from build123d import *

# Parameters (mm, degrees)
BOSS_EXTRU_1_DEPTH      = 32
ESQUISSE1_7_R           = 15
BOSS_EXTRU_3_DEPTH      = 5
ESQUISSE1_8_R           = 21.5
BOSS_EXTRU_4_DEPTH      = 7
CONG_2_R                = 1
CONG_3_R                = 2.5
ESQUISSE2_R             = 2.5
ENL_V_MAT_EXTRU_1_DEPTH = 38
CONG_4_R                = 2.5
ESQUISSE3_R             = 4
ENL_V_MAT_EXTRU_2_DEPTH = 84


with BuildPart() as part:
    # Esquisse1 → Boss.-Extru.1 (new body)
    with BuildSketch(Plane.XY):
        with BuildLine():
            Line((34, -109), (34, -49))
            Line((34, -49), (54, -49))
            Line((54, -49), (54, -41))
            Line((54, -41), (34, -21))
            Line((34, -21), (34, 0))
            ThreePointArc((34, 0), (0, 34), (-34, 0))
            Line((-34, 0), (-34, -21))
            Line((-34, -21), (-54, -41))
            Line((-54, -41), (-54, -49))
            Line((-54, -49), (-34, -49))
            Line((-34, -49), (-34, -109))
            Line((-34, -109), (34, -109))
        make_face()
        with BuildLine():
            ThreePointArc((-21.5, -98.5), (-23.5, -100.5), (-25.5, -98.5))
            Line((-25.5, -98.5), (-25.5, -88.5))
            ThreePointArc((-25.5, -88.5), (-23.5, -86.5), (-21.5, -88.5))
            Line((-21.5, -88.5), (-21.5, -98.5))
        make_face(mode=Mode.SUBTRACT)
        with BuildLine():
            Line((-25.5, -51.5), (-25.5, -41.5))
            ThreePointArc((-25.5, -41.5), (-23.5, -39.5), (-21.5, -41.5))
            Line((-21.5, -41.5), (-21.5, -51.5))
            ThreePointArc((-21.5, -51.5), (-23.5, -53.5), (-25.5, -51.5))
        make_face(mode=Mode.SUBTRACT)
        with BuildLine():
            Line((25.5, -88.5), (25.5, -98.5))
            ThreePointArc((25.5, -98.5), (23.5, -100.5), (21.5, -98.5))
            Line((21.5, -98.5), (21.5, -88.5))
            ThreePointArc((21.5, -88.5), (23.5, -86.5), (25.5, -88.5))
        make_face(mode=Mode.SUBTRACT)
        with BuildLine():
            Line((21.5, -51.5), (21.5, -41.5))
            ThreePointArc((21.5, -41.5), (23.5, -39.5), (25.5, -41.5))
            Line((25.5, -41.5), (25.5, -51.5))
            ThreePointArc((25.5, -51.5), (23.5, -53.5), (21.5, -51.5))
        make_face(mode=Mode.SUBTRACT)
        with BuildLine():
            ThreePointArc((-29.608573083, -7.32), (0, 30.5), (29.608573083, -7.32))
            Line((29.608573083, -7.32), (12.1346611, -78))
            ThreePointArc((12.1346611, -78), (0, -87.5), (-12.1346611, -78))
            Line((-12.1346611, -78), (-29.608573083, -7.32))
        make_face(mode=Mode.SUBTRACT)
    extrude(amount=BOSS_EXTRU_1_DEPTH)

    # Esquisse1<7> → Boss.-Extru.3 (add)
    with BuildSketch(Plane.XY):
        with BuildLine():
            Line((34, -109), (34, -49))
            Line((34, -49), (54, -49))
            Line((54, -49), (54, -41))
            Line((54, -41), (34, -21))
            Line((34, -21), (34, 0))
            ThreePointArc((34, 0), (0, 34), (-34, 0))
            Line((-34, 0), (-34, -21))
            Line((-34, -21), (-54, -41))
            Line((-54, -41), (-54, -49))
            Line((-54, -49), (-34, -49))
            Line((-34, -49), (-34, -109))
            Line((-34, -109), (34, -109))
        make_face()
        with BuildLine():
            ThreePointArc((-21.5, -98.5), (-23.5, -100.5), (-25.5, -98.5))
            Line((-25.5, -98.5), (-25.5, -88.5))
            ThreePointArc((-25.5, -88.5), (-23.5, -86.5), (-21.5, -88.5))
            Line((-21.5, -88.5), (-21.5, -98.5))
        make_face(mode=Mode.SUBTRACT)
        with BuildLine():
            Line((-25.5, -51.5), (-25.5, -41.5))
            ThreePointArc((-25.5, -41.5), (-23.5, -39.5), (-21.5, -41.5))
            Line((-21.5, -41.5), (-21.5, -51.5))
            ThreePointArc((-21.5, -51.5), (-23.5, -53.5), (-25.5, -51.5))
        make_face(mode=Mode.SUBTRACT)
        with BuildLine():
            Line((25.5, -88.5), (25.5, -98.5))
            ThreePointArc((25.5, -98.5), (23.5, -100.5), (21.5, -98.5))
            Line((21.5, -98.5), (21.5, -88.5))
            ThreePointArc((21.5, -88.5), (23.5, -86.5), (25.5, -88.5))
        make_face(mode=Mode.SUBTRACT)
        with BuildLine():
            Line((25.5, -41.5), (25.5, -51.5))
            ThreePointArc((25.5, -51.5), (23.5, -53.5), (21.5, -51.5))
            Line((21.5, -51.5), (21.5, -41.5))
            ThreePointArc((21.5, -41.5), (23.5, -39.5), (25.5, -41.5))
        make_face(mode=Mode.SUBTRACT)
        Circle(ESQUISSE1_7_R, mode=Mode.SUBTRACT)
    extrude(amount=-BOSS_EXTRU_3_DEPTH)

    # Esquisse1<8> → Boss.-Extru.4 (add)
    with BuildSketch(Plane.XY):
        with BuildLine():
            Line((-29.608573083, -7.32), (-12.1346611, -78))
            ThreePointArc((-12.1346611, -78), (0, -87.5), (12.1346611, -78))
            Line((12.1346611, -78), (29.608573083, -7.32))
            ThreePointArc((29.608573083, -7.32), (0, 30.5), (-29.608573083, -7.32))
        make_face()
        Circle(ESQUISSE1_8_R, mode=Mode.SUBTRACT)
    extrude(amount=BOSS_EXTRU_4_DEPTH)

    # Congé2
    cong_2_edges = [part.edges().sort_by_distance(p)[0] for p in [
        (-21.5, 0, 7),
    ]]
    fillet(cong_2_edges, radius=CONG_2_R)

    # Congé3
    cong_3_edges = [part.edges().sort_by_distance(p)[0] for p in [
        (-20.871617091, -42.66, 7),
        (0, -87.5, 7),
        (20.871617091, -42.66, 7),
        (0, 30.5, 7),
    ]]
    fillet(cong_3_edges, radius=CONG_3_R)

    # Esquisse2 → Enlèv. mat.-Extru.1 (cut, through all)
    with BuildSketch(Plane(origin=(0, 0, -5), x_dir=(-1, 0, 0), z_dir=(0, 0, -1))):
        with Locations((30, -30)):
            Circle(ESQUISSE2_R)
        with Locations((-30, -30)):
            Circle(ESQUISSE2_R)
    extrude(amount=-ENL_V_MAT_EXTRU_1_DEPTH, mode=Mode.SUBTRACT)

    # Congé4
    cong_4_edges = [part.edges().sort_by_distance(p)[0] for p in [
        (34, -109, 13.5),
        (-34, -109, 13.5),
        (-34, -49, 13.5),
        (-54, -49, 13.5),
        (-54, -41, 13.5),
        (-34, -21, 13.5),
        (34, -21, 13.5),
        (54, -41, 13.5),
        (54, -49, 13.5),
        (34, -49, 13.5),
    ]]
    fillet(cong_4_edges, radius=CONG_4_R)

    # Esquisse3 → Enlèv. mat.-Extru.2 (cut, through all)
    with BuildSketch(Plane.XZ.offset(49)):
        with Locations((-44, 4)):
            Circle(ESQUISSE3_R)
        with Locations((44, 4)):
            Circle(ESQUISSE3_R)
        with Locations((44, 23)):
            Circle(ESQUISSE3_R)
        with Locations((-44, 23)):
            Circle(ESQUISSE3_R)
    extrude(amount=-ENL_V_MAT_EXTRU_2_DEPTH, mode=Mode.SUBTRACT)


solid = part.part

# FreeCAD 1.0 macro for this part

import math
import FreeCAD as App
import Part
import Sketcher
from FreeCAD import Vector
Q = App.Units.Quantity


def edges_at(feature, points):
    """Names of the edges that pass closest to the given points."""
    edges = feature.Shape.Edges
    near = lambda p: min(range(len(edges)), key=lambda i: edges[i].distToShape(Part.Vertex(*p))[0])
    return sorted({f"Edge{near(p) + 1}" for p in points})

doc = App.newDocument("Part")
body = doc.addObject("PartDesign::Body", "Body")

sketch1 = body.newObject("Sketcher::SketchObject", "Sketch")
sketch1.AttachmentSupport = (doc.getObject("XY_Plane"), [""])
sketch1.MapMode = "FlatFace"
sketch1.addGeometry([
    Part.LineSegment(Vector(34, -109, 0), Vector(34, -49, 0)),
    Part.LineSegment(Vector(34, -49, 0), Vector(54, -49, 0)),
    Part.LineSegment(Vector(54, -49, 0), Vector(54, -41, 0)),
    Part.LineSegment(Vector(54, -41, 0), Vector(34, -21, 0)),
    Part.LineSegment(Vector(34, -21, 0), Vector(34, 0, 0)),
    Part.ArcOfCircle(Part.Circle(Vector(0, 0, 0), Vector(0, 0, 1), 34), math.radians(0), math.radians(180)),
    Part.LineSegment(Vector(-34, 0, 0), Vector(-34, -21, 0)),
    Part.LineSegment(Vector(-34, -21, 0), Vector(-54, -41, 0)),
    Part.LineSegment(Vector(-54, -41, 0), Vector(-54, -49, 0)),
    Part.LineSegment(Vector(-54, -49, 0), Vector(-34, -49, 0)),
    Part.LineSegment(Vector(-34, -49, 0), Vector(-34, -109, 0)),
    Part.LineSegment(Vector(-34, -109, 0), Vector(34, -109, 0)),
    Part.LineSegment(Vector(-21.5, -88.5, 0), Vector(-21.5, -98.5, 0)),
    Part.ArcOfCircle(Part.Circle(Vector(-23.5, -98.5, 0), Vector(0, 0, 1), 2), math.radians(180), math.radians(360)),
    Part.LineSegment(Vector(-25.5, -98.5, 0), Vector(-25.5, -88.5, 0)),
    Part.ArcOfCircle(Part.Circle(Vector(-23.5, -88.5, 0), Vector(0, 0, 1), 2), math.radians(0), math.radians(180)),
    Part.ArcOfCircle(Part.Circle(Vector(-23.5, -51.5, 0), Vector(0, 0, 1), 2), math.radians(180), math.radians(360)),
    Part.LineSegment(Vector(-25.5, -51.5, 0), Vector(-25.5, -41.5, 0)),
    Part.ArcOfCircle(Part.Circle(Vector(-23.5, -41.5, 0), Vector(0, 0, 1), 2), math.radians(0), math.radians(180)),
    Part.LineSegment(Vector(-21.5, -41.5, 0), Vector(-21.5, -51.5, 0)),
    Part.ArcOfCircle(Part.Circle(Vector(23.5, -88.5, 0), Vector(0, 0, 1), 2), math.radians(0), math.radians(180)),
    Part.LineSegment(Vector(25.5, -88.5, 0), Vector(25.5, -98.5, 0)),
    Part.ArcOfCircle(Part.Circle(Vector(23.5, -98.5, 0), Vector(0, 0, 1), 2), math.radians(180), math.radians(360)),
    Part.LineSegment(Vector(21.5, -98.5, 0), Vector(21.5, -88.5, 0)),
    Part.ArcOfCircle(Part.Circle(Vector(23.5, -51.5, 0), Vector(0, 0, 1), 2), math.radians(180), math.radians(360)),
    Part.LineSegment(Vector(21.5, -51.5, 0), Vector(21.5, -41.5, 0)),
    Part.ArcOfCircle(Part.Circle(Vector(23.5, -41.5, 0), Vector(0, 0, 1), 2), math.radians(0), math.radians(180)),
    Part.LineSegment(Vector(25.5, -41.5, 0), Vector(25.5, -51.5, 0)),
    Part.LineSegment(Vector(-12.1, -78, 0), Vector(-29.6, -7.3, 0)),
    Part.ArcOfCircle(Part.Circle(Vector(0, 0, 0), Vector(0, 0, 1), 30.5), math.radians(-14), math.radians(194)),
    Part.LineSegment(Vector(29.6, -7.3, 0), Vector(12.1, -78, 0)),
    Part.ArcOfCircle(Part.Circle(Vector(0, -75, 0), Vector(0, 0, 1), 12.5), math.radians(-166), math.radians(-14)),
], False)
sketch1.addConstraint([
    Sketcher.Constraint("Coincident", 0, 2, 1, 1),
    Sketcher.Constraint("Coincident", 1, 2, 2, 1),
    Sketcher.Constraint("Coincident", 2, 2, 3, 1),
    Sketcher.Constraint("Coincident", 3, 2, 4, 1),
    Sketcher.Constraint("Tangent", 4, 2, 5, 1),
    Sketcher.Constraint("Tangent", 5, 2, 6, 1),
    Sketcher.Constraint("Coincident", 6, 2, 7, 1),
    Sketcher.Constraint("Coincident", 7, 2, 8, 1),
    Sketcher.Constraint("Coincident", 8, 2, 9, 1),
    Sketcher.Constraint("Coincident", 9, 2, 10, 1),
    Sketcher.Constraint("Coincident", 10, 2, 11, 1),
    Sketcher.Constraint("Coincident", 11, 2, 0, 1),
    Sketcher.Constraint("Tangent", 12, 2, 13, 2),
    Sketcher.Constraint("Tangent", 13, 1, 14, 1),
    Sketcher.Constraint("Tangent", 14, 2, 15, 2),
    Sketcher.Constraint("Tangent", 15, 1, 12, 1),
    Sketcher.Constraint("Tangent", 16, 1, 17, 1),
    Sketcher.Constraint("Tangent", 17, 2, 18, 2),
    Sketcher.Constraint("Tangent", 18, 1, 19, 1),
    Sketcher.Constraint("Tangent", 19, 2, 16, 2),
    Sketcher.Constraint("Tangent", 20, 1, 21, 1),
    Sketcher.Constraint("Tangent", 21, 2, 22, 2),
    Sketcher.Constraint("Tangent", 22, 1, 23, 1),
    Sketcher.Constraint("Tangent", 23, 2, 20, 2),
    Sketcher.Constraint("Tangent", 24, 1, 25, 1),
    Sketcher.Constraint("Tangent", 25, 2, 26, 2),
    Sketcher.Constraint("Tangent", 26, 1, 27, 1),
    Sketcher.Constraint("Tangent", 27, 2, 24, 2),
    Sketcher.Constraint("Tangent", 28, 2, 29, 2),
    Sketcher.Constraint("Tangent", 29, 1, 30, 1),
    Sketcher.Constraint("Tangent", 30, 2, 31, 2),
    Sketcher.Constraint("Tangent", 31, 1, 28, 1),
    Sketcher.Constraint("Vertical", 0),
    Sketcher.Constraint("Horizontal", 1),
    Sketcher.Constraint("Vertical", 2),
    Sketcher.Constraint("Vertical", 4),
    Sketcher.Constraint("Vertical", 6),
    Sketcher.Constraint("Vertical", 8),
    Sketcher.Constraint("Horizontal", 9),
    Sketcher.Constraint("Vertical", 10),
    Sketcher.Constraint("Horizontal", 11),
    Sketcher.Constraint("Vertical", 12),
    Sketcher.Constraint("Vertical", 14),
    Sketcher.Constraint("Vertical", 17),
    Sketcher.Constraint("Vertical", 19),
    Sketcher.Constraint("Vertical", 21),
    Sketcher.Constraint("Vertical", 23),
    Sketcher.Constraint("Vertical", 25),
    Sketcher.Constraint("Vertical", 27),
    Sketcher.Constraint("Coincident", 5, 3, -1, 1),
    Sketcher.Constraint("Coincident", 29, 3, -1, 1),
    Sketcher.Constraint("Equal", 15, 16),
    Sketcher.Constraint("Equal", 18, 20),
    Sketcher.Constraint("Equal", 22, 24),
    Sketcher.Constraint("Symmetric", 15, 3, 20, 3, -2),
    Sketcher.Constraint("Symmetric", 16, 3, 24, 3, -2),
    Sketcher.Constraint("Symmetric", 2, 2, 7, 2, -2),
    Sketcher.Constraint("Symmetric", 0, 2, 9, 2, -2),
    Sketcher.Constraint("PointOnObject", 31, 3, -2),
    Sketcher.Constraint("Perpendicular", 3, 7),
    Sketcher.Constraint("Horizontal", 13, 3, 22, 3),
    Sketcher.Constraint("Horizontal", 18, 3, 26, 3),
    Sketcher.Constraint("Horizontal", 3, 2, 6, 2),
    Sketcher.Constraint("Vertical", 15, 3, 16, 3),
    Sketcher.Constraint("Vertical", 0, 2, 3, 2),
    Sketcher.Constraint("Equal", 14, 17),
    Sketcher.Constraint("Radius", 5, Q("34 mm")),
    Sketcher.Constraint("Radius", 13, Q("2 mm")),
    Sketcher.Constraint("Radius", 29, Q("30.5 mm")),
    Sketcher.Constraint("Radius", 31, Q("12.5 mm")),
    Sketcher.Constraint("DistanceX", 1, 1, 1, 2, Q("20 mm")),
    Sketcher.Constraint("DistanceY", 0, 1, 0, 2, Q("60 mm")),
    Sketcher.Constraint("DistanceY", 2, 1, 2, 2, Q("8 mm")),
    Sketcher.Constraint("DistanceY", 4, 1, 4, 2, Q("21 mm")),
    Sketcher.Constraint("DistanceY", 12, 2, 12, 1, Q("10 mm")),
    Sketcher.Constraint("DistanceY", 31, 3, -1, 1, Q("75 mm")),
    Sketcher.Constraint("DistanceY", 15, 3, 16, 3, Q("37 mm")),
    Sketcher.Constraint("DistanceX", 15, 3, 20, 3, Q("47 mm")),
    Sketcher.Constraint("DistanceY", 13, 3, -1, 1, Q("98.5 mm")),
])
pad1 = body.newObject("PartDesign::Pad", "Pad")
pad1.Profile = sketch1
pad1.Length = 32

sketch2 = body.newObject("Sketcher::SketchObject", "Sketch001")
sketch2.AttachmentSupport = (doc.getObject("XY_Plane"), [""])
sketch2.MapMode = "FlatFace"
sketch2.addGeometry([
    Part.LineSegment(Vector(34, -109, 0), Vector(34, -49, 0)),
    Part.LineSegment(Vector(34, -49, 0), Vector(54, -49, 0)),
    Part.LineSegment(Vector(54, -49, 0), Vector(54, -41, 0)),
    Part.LineSegment(Vector(54, -41, 0), Vector(34, -21, 0)),
    Part.LineSegment(Vector(34, -21, 0), Vector(34, 0, 0)),
    Part.ArcOfCircle(Part.Circle(Vector(0, 0, 0), Vector(0, 0, 1), 34), math.radians(0), math.radians(180)),
    Part.LineSegment(Vector(-34, 0, 0), Vector(-34, -21, 0)),
    Part.LineSegment(Vector(-34, -21, 0), Vector(-54, -41, 0)),
    Part.LineSegment(Vector(-54, -41, 0), Vector(-54, -49, 0)),
    Part.LineSegment(Vector(-54, -49, 0), Vector(-34, -49, 0)),
    Part.LineSegment(Vector(-34, -49, 0), Vector(-34, -109, 0)),
    Part.LineSegment(Vector(-34, -109, 0), Vector(34, -109, 0)),
    Part.LineSegment(Vector(-21.5, -88.5, 0), Vector(-21.5, -98.5, 0)),
    Part.ArcOfCircle(Part.Circle(Vector(-23.5, -98.5, 0), Vector(0, 0, 1), 2), math.radians(180), math.radians(360)),
    Part.LineSegment(Vector(-25.5, -98.5, 0), Vector(-25.5, -88.5, 0)),
    Part.ArcOfCircle(Part.Circle(Vector(-23.5, -88.5, 0), Vector(0, 0, 1), 2), math.radians(0), math.radians(180)),
    Part.ArcOfCircle(Part.Circle(Vector(-23.5, -51.5, 0), Vector(0, 0, 1), 2), math.radians(180), math.radians(360)),
    Part.LineSegment(Vector(-25.5, -51.5, 0), Vector(-25.5, -41.5, 0)),
    Part.ArcOfCircle(Part.Circle(Vector(-23.5, -41.5, 0), Vector(0, 0, 1), 2), math.radians(0), math.radians(180)),
    Part.LineSegment(Vector(-21.5, -41.5, 0), Vector(-21.5, -51.5, 0)),
    Part.ArcOfCircle(Part.Circle(Vector(23.5, -88.5, 0), Vector(0, 0, 1), 2), math.radians(0), math.radians(180)),
    Part.LineSegment(Vector(25.5, -88.5, 0), Vector(25.5, -98.5, 0)),
    Part.ArcOfCircle(Part.Circle(Vector(23.5, -98.5, 0), Vector(0, 0, 1), 2), math.radians(180), math.radians(360)),
    Part.LineSegment(Vector(21.5, -98.5, 0), Vector(21.5, -88.5, 0)),
    Part.ArcOfCircle(Part.Circle(Vector(23.5, -41.5, 0), Vector(0, 0, 1), 2), math.radians(0), math.radians(180)),
    Part.LineSegment(Vector(25.5, -41.5, 0), Vector(25.5, -51.5, 0)),
    Part.ArcOfCircle(Part.Circle(Vector(23.5, -51.5, 0), Vector(0, 0, 1), 2), math.radians(180), math.radians(360)),
    Part.LineSegment(Vector(21.5, -51.5, 0), Vector(21.5, -41.5, 0)),
    Part.Circle(Vector(0, 0, 0), Vector(0, 0, 1), 15),
], False)
sketch2.addConstraint([
    Sketcher.Constraint("Coincident", 0, 2, 1, 1),
    Sketcher.Constraint("Coincident", 1, 2, 2, 1),
    Sketcher.Constraint("Coincident", 2, 2, 3, 1),
    Sketcher.Constraint("Coincident", 3, 2, 4, 1),
    Sketcher.Constraint("Tangent", 4, 2, 5, 1),
    Sketcher.Constraint("Tangent", 5, 2, 6, 1),
    Sketcher.Constraint("Coincident", 6, 2, 7, 1),
    Sketcher.Constraint("Coincident", 7, 2, 8, 1),
    Sketcher.Constraint("Coincident", 8, 2, 9, 1),
    Sketcher.Constraint("Coincident", 9, 2, 10, 1),
    Sketcher.Constraint("Coincident", 10, 2, 11, 1),
    Sketcher.Constraint("Coincident", 11, 2, 0, 1),
    Sketcher.Constraint("Tangent", 12, 2, 13, 2),
    Sketcher.Constraint("Tangent", 13, 1, 14, 1),
    Sketcher.Constraint("Tangent", 14, 2, 15, 2),
    Sketcher.Constraint("Tangent", 15, 1, 12, 1),
    Sketcher.Constraint("Tangent", 16, 1, 17, 1),
    Sketcher.Constraint("Tangent", 17, 2, 18, 2),
    Sketcher.Constraint("Tangent", 18, 1, 19, 1),
    Sketcher.Constraint("Tangent", 19, 2, 16, 2),
    Sketcher.Constraint("Tangent", 20, 1, 21, 1),
    Sketcher.Constraint("Tangent", 21, 2, 22, 2),
    Sketcher.Constraint("Tangent", 22, 1, 23, 1),
    Sketcher.Constraint("Tangent", 23, 2, 20, 2),
    Sketcher.Constraint("Tangent", 24, 1, 25, 1),
    Sketcher.Constraint("Tangent", 25, 2, 26, 2),
    Sketcher.Constraint("Tangent", 26, 1, 27, 1),
    Sketcher.Constraint("Tangent", 27, 2, 24, 2),
    Sketcher.Constraint("Vertical", 0),
    Sketcher.Constraint("Horizontal", 1),
    Sketcher.Constraint("Vertical", 2),
    Sketcher.Constraint("Vertical", 4),
    Sketcher.Constraint("Vertical", 6),
    Sketcher.Constraint("Vertical", 8),
    Sketcher.Constraint("Horizontal", 9),
    Sketcher.Constraint("Vertical", 10),
    Sketcher.Constraint("Horizontal", 11),
    Sketcher.Constraint("Vertical", 12),
    Sketcher.Constraint("Vertical", 14),
    Sketcher.Constraint("Vertical", 17),
    Sketcher.Constraint("Vertical", 19),
    Sketcher.Constraint("Vertical", 21),
    Sketcher.Constraint("Vertical", 23),
    Sketcher.Constraint("Vertical", 25),
    Sketcher.Constraint("Vertical", 27),
    Sketcher.Constraint("Coincident", 5, 3, -1, 1),
    Sketcher.Constraint("Coincident", 28, 3, -1, 1),
    Sketcher.Constraint("Equal", 15, 16),
    Sketcher.Constraint("Equal", 18, 20),
    Sketcher.Constraint("Equal", 22, 24),
    Sketcher.Constraint("Symmetric", 15, 3, 20, 3, -2),
    Sketcher.Constraint("Symmetric", 18, 3, 24, 3, -2),
    Sketcher.Constraint("Symmetric", 2, 2, 7, 2, -2),
    Sketcher.Constraint("Symmetric", 0, 2, 9, 2, -2),
    Sketcher.Constraint("Perpendicular", 3, 7),
    Sketcher.Constraint("Horizontal", 13, 3, 22, 3),
    Sketcher.Constraint("Horizontal", 16, 3, 26, 3),
    Sketcher.Constraint("Horizontal", 3, 2, 6, 2),
    Sketcher.Constraint("Vertical", 15, 3, 16, 3),
    Sketcher.Constraint("Vertical", 0, 2, 3, 2),
    Sketcher.Constraint("Equal", 14, 17),
    Sketcher.Constraint("Diameter", 28, Q("30 mm")),
    Sketcher.Constraint("Radius", 5, Q("34 mm")),
    Sketcher.Constraint("Radius", 13, Q("2 mm")),
    Sketcher.Constraint("DistanceX", 1, 1, 1, 2, Q("20 mm")),
    Sketcher.Constraint("DistanceY", 0, 1, 0, 2, Q("60 mm")),
    Sketcher.Constraint("DistanceY", 2, 1, 2, 2, Q("8 mm")),
    Sketcher.Constraint("DistanceY", 4, 1, 4, 2, Q("21 mm")),
    Sketcher.Constraint("DistanceY", 12, 2, 12, 1, Q("10 mm")),
    Sketcher.Constraint("DistanceY", 15, 3, 16, 3, Q("37 mm")),
    Sketcher.Constraint("DistanceX", 15, 3, 20, 3, Q("47 mm")),
    Sketcher.Constraint("DistanceY", 13, 3, -1, 1, Q("98.5 mm")),
])
pad2 = body.newObject("PartDesign::Pad", "Pad001")
pad2.Profile = sketch2
pad2.Length = 5
pad2.Reversed = True

sketch3 = body.newObject("Sketcher::SketchObject", "Sketch002")
sketch3.AttachmentSupport = (doc.getObject("XY_Plane"), [""])
sketch3.MapMode = "FlatFace"
sketch3.addGeometry([
    Part.LineSegment(Vector(-30, -7, 0), Vector(-12, -78, 0)),
    Part.ArcOfCircle(Part.Circle(Vector(0, -75, 0), Vector(0, 0, 1), 13), math.radians(-166), math.radians(-14)),
    Part.LineSegment(Vector(12, -78, 0), Vector(30, -7, 0)),
    Part.ArcOfCircle(Part.Circle(Vector(0, 0, 0), Vector(0, 0, 1), 30), math.radians(-14), math.radians(194)),
    Part.Circle(Vector(0, 0, 0), Vector(0, 0, 1), 22),
], False)
sketch3.addConstraint([
    Sketcher.Constraint("Tangent", 0, 2, 1, 1),
    Sketcher.Constraint("Tangent", 1, 2, 2, 1),
    Sketcher.Constraint("Tangent", 2, 2, 3, 1),
    Sketcher.Constraint("Tangent", 3, 2, 0, 1),
    Sketcher.Constraint("Coincident", 3, 3, -1, 1),
    Sketcher.Constraint("Coincident", 4, 3, -1, 1),
    Sketcher.Constraint("PointOnObject", 1, 3, -2),
    Sketcher.Constraint("Diameter", 4, Q("43 mm")),
    Sketcher.Constraint("Radius", 1, Q("12.5 mm")),
    Sketcher.Constraint("Radius", 3, Q("30.5 mm")),
    Sketcher.Constraint("DistanceY", 1, 3, -1, 1, Q("75 mm")),
])
pad3 = body.newObject("PartDesign::Pad", "Pad002")
pad3.Profile = sketch3
pad3.Length = 7
doc.recompute()

fillet = body.newObject("PartDesign::Fillet", "Fillet")
fillet.Base = (pad3, edges_at(pad3, [(-21.5, 0, 7)]))
fillet.Radius = 1
doc.recompute()

fillet2 = body.newObject("PartDesign::Fillet", "Fillet001")
fillet2.Base = (fillet, edges_at(fillet, [
    (-20.872, -42.66, 7),
    (0, -87.5, 7),
    (20.872, -42.66, 7),
    (0, 30.5, 7),
]))
fillet2.Radius = 2.5

sketch4 = body.newObject("Sketcher::SketchObject", "Sketch003")
sketch4.AttachmentSupport = (doc.getObject("XY_Plane"), [""])
sketch4.MapMode = "FlatFace"
sketch4.AttachmentOffset = App.Placement(Vector(0, 0, -5), App.Rotation())
sketch4.addGeometry([
    Part.Circle(Vector(-30, -30, 0), Vector(0, 0, 1), 2.5),
    Part.Circle(Vector(30, -30, 0), Vector(0, 0, 1), 2.5),
], False)
sketch4.addConstraint([
    Sketcher.Constraint("Equal", 0, 1),
    Sketcher.Constraint("Symmetric", 0, 3, 1, 3, -2),
    Sketcher.Constraint("Diameter", 0, Q("5 mm")),
    Sketcher.Constraint("DistanceX", 0, 3, -1, 1, Q("30 mm")),
    Sketcher.Constraint("DistanceY", 0, 3, -1, 1, Q("30 mm")),
])
pocket1 = body.newObject("PartDesign::Pocket", "Pocket")
pocket1.Profile = sketch4
pocket1.Type = "ThroughAll"
pocket1.Reversed = True
doc.recompute()

fillet3 = body.newObject("PartDesign::Fillet", "Fillet002")
fillet3.Base = (pocket1, edges_at(pocket1, [
    (34, -109, 13.5),
    (-34, -109, 13.5),
    (-34, -49, 13.5),
    (-54, -49, 13.5),
    (-54, -41, 13.5),
    (-34, -21, 13.5),
    (34, -21, 13.5),
    (54, -41, 13.5),
    (54, -49, 13.5),
    (34, -49, 13.5),
]))
fillet3.Radius = 2.5

sketch5 = body.newObject("Sketcher::SketchObject", "Sketch004")
sketch5.AttachmentSupport = (doc.getObject("XZ_Plane"), [""])
sketch5.MapMode = "FlatFace"
sketch5.AttachmentOffset = App.Placement(Vector(0, 0, 49), App.Rotation())
sketch5.addGeometry([
    Part.Circle(Vector(-44, 4, 0), Vector(0, 0, 1), 4),
    Part.Circle(Vector(44, 4, 0), Vector(0, 0, 1), 4),
    Part.Circle(Vector(44, 23, 0), Vector(0, 0, 1), 4),
    Part.Circle(Vector(-44, 23, 0), Vector(0, 0, 1), 4),
], False)
sketch5.addConstraint([
    Sketcher.Constraint("Equal", 0, 1),
    Sketcher.Constraint("Equal", 1, 2),
    Sketcher.Constraint("Equal", 2, 3),
    Sketcher.Constraint("Symmetric", 0, 3, 1, 3, -2),
    Sketcher.Constraint("Symmetric", 2, 3, 3, 3, -2),
    Sketcher.Constraint("Vertical", 1, 3, 2, 3),
    Sketcher.Constraint("Diameter", 0, Q("8 mm")),
    Sketcher.Constraint("DistanceX", 0, 3, -1, 1, Q("44 mm")),
    Sketcher.Constraint("DistanceY", -1, 1, 0, 3, Q("4 mm")),
    Sketcher.Constraint("DistanceY", -1, 1, 2, 3, Q("23 mm")),
])
pocket2 = body.newObject("PartDesign::Pocket", "Pocket001")
pocket2.Profile = sketch5
pocket2.Type = "ThroughAll"

doc.recompute()
